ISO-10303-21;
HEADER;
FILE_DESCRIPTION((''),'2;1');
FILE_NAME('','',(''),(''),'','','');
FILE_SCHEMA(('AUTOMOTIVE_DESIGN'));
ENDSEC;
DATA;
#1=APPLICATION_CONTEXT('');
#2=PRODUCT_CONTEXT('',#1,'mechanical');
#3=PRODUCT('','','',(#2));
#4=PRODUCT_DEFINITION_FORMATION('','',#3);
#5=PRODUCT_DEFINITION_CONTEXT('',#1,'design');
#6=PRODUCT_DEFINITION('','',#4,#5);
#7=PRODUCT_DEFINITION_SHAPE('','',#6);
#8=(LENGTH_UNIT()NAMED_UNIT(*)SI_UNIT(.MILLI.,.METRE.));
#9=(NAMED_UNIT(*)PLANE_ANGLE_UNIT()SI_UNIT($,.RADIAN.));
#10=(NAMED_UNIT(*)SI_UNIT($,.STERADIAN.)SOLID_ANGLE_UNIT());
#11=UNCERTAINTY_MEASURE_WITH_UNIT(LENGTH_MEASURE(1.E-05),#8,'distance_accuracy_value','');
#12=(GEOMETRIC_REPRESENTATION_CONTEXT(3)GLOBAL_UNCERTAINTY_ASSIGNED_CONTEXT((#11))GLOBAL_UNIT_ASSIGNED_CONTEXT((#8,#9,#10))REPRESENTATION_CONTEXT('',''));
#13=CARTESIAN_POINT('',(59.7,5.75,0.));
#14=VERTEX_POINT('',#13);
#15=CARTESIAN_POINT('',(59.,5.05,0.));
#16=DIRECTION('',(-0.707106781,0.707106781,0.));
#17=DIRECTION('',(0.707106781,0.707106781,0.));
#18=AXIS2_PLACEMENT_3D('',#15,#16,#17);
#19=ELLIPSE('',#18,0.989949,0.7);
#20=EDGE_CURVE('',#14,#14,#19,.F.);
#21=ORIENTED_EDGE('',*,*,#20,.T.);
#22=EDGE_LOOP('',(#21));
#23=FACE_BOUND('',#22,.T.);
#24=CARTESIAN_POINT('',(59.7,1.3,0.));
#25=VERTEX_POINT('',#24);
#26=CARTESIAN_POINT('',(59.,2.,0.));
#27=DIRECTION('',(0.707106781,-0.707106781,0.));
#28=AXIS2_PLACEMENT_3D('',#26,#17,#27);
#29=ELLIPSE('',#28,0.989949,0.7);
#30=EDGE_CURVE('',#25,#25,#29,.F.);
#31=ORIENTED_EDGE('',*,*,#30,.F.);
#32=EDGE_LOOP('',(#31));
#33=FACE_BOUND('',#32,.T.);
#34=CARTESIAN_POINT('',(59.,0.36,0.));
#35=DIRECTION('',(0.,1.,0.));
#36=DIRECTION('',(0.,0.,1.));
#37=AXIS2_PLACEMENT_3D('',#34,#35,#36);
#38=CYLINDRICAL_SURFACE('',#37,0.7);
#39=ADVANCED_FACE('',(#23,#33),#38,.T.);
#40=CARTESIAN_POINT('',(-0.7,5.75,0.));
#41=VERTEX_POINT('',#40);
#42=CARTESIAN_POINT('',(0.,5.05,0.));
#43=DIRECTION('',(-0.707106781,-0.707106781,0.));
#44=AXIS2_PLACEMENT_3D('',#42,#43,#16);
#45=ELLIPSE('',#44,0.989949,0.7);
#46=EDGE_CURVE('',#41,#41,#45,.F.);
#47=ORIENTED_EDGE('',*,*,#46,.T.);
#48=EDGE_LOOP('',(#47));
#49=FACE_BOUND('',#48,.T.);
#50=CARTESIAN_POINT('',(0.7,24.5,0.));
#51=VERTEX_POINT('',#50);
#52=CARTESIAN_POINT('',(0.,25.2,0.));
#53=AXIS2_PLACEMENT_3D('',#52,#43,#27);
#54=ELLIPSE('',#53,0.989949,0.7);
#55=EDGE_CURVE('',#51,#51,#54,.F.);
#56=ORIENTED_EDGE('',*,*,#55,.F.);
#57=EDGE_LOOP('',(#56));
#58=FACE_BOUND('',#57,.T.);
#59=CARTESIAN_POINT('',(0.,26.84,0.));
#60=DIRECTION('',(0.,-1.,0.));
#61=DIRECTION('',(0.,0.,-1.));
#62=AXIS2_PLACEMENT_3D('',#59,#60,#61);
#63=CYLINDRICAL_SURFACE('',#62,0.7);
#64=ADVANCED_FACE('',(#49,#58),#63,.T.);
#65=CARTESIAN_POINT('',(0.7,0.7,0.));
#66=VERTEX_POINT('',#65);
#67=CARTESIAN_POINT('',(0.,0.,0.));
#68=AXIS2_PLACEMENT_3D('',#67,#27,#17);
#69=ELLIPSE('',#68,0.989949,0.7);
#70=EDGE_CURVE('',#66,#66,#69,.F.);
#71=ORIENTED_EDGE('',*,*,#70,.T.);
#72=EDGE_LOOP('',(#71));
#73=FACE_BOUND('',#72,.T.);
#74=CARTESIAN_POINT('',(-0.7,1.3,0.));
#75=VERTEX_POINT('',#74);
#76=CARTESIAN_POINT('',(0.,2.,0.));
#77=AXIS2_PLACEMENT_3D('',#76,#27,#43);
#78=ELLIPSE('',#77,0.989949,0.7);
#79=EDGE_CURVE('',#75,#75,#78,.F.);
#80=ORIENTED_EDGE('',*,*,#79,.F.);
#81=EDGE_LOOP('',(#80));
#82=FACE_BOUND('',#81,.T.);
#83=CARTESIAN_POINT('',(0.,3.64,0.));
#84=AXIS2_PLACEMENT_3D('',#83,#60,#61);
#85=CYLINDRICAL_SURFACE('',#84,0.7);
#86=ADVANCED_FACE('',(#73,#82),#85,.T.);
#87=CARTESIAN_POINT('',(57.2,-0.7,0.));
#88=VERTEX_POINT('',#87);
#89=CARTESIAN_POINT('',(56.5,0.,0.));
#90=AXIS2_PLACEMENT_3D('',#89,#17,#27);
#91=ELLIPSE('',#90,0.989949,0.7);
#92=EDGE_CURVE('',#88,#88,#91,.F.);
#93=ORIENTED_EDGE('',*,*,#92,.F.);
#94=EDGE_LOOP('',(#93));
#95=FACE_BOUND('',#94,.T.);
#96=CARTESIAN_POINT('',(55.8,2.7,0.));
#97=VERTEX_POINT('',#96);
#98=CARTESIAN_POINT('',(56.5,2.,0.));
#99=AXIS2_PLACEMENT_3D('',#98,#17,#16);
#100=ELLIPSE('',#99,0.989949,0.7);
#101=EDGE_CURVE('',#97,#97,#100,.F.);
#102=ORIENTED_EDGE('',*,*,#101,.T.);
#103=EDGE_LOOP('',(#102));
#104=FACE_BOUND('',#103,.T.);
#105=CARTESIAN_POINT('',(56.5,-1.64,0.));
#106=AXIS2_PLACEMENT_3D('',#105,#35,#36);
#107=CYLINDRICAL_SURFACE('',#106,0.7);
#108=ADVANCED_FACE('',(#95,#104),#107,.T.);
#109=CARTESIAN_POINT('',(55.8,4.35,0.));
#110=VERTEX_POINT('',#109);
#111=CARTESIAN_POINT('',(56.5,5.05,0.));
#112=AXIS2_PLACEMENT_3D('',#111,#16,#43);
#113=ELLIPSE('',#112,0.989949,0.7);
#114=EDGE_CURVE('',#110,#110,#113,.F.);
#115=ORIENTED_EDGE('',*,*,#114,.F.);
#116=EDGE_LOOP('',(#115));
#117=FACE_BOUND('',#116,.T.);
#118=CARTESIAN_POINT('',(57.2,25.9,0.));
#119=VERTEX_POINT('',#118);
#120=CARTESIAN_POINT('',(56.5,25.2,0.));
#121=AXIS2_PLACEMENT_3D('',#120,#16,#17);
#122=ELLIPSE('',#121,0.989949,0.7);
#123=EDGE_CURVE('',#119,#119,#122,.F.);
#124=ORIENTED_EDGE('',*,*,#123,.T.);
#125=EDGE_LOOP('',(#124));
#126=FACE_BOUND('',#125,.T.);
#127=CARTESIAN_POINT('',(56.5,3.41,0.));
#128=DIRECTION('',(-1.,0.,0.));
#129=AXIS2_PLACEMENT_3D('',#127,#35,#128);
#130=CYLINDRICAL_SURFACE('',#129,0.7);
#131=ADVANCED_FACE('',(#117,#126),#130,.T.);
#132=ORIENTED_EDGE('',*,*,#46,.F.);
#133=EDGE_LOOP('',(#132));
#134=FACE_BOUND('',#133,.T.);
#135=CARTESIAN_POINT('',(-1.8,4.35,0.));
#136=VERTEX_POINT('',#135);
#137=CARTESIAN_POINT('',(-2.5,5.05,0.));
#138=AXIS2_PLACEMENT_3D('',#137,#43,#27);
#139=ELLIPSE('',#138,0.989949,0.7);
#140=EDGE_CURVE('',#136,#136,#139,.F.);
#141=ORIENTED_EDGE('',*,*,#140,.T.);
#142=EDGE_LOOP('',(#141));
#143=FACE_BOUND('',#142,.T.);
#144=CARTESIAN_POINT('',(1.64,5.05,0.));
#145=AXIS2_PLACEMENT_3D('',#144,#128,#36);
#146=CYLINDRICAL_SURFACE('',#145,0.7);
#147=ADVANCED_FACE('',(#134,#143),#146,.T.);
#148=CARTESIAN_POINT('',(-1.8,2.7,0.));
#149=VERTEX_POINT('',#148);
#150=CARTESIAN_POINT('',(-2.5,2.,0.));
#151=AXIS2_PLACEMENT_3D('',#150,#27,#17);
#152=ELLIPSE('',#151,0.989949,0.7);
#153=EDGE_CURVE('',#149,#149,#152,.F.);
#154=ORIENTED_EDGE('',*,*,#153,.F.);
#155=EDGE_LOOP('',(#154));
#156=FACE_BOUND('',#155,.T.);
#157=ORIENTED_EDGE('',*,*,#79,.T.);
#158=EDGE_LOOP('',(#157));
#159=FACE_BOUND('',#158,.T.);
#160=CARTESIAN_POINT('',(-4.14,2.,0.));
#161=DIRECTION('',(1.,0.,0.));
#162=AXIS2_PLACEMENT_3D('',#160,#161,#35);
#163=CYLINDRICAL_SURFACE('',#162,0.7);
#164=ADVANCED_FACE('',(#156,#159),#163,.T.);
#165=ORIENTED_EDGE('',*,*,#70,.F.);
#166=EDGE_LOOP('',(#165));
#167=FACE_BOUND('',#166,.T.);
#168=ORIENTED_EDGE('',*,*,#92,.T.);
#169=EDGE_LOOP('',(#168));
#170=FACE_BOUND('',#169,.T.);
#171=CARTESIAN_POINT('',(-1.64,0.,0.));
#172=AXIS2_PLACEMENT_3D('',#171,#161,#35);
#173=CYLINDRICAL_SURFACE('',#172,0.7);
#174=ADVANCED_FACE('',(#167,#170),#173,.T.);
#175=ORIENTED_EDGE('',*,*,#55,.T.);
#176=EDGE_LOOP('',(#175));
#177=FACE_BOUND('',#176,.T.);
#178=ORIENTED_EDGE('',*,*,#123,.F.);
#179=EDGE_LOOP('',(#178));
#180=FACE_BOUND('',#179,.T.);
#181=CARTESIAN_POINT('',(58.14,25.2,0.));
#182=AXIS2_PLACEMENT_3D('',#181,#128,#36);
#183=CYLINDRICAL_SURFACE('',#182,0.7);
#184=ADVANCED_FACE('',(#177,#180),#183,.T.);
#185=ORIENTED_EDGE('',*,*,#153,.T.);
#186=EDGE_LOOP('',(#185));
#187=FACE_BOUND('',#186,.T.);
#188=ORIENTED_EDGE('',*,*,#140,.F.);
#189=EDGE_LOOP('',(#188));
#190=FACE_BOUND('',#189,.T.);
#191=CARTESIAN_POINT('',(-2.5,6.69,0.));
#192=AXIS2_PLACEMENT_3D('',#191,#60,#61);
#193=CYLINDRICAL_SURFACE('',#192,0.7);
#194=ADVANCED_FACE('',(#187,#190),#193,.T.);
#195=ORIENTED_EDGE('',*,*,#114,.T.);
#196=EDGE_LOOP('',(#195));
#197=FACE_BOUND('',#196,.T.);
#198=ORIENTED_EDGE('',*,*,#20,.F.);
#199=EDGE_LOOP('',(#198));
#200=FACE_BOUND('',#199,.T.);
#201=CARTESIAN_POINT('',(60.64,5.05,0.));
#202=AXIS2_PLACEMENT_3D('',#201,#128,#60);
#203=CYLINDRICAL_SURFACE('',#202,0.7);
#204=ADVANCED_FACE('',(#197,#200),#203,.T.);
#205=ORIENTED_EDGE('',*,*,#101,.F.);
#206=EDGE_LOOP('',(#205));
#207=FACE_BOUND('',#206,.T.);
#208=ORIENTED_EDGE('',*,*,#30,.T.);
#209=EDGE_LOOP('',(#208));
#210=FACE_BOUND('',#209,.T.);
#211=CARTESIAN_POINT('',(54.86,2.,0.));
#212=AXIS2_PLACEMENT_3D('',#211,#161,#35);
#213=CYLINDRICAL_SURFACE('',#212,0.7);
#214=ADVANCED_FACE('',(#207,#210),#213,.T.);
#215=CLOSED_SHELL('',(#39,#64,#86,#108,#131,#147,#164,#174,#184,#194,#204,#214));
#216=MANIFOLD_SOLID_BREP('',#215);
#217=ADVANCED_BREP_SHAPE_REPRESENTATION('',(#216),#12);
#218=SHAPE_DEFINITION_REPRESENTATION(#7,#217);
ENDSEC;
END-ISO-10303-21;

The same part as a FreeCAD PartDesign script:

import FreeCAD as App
import Part
import Sketcher

doc = App.newDocument("Part")
params = doc.addObject("Spreadsheet::Sheet", "Params")
for row, (alias, value) in enumerate([
    ("sketch1_diameter", "1.4 mm"),
    ("sketch2_height", "2 mm"),
    ("sketch2_width", "56.5 mm"),
    ("sketch2_width2", "2.5 mm"),
    ("sketch2_height2", "20.15 mm"),
    ("sketch2_height3", "3.05 mm"),
], start=1):
    params.set(f"A{row}", alias)
    params.set(f"B{row}", "=" + value)
    params.setAlias(f"B{row}", alias)

body = doc.addObject("PartDesign::Body", "Body")

# Sketch on YZ plane
sketch1 = doc.addObject("Sketcher::SketchObject", "Sketch")
body.addObject(sketch1)
sketch1.AttachmentSupport = (doc.YZ_Plane, [""])
sketch1.MapMode = "FlatFace"
sketch1.addGeometry(Part.Circle(App.Vector(0, 0, 0), App.Vector(0, 0, 1), 0.7), False)
sketch1.addConstraint([
    Sketcher.Constraint("Coincident", 0, 3, -1, 1),
    Sketcher.Constraint("Diameter", 0, 1.4),
])
sketch1.setExpression("Constraints[1]", "Params.sketch1_diameter")

# Sketch on XY plane
sketch2 = doc.addObject("Sketcher::SketchObject", "Sketch001")
body.addObject(sketch2)
sketch2.AttachmentSupport = (doc.XY_Plane, [""])
sketch2.MapMode = "FlatFace"
sketch2.addGeometry([
    Part.LineSegment(App.Vector(0, 25.2, 0), App.Vector(56.5, 25.2, 0)),  # 0
    Part.LineSegment(App.Vector(56.5, 25.2, 0), App.Vector(56.5, 5, 0)),  # 1
    Part.LineSegment(App.Vector(56.5, 5, 0), App.Vector(59, 5, 0)),  # 2
    Part.LineSegment(App.Vector(59, 5, 0), App.Vector(59, 2, 0)),  # 3
    Part.LineSegment(App.Vector(59, 2, 0), App.Vector(56.5, 2, 0)),  # 4
    Part.LineSegment(App.Vector(56.5, 2, 0), App.Vector(56.5, 0, 0)),  # 5
    Part.LineSegment(App.Vector(56.5, 0, 0), App.Vector(0, 0, 0)),  # 6
    Part.LineSegment(App.Vector(0, 0, 0), App.Vector(0, 2, 0)),  # 7
    Part.LineSegment(App.Vector(0, 2, 0), App.Vector(-2.5, 2, 0)),  # 8
    Part.LineSegment(App.Vector(-2.5, 2, 0), App.Vector(-2.5, 5, 0)),  # 9
    Part.LineSegment(App.Vector(-2.5, 5, 0), App.Vector(0, 5, 0)),  # 10
    Part.LineSegment(App.Vector(0, 5, 0), App.Vector(0, 25.2, 0)),  # 11
], False)
sketch2.addConstraint([
    Sketcher.Constraint("Coincident", 0, 2, 1, 1),
    Sketcher.Constraint("Coincident", 1, 2, 2, 1),
    Sketcher.Constraint("Coincident", 2, 2, 3, 1),
    Sketcher.Constraint("Coincident", 3, 2, 4, 1),
    Sketcher.Constraint("Coincident", 4, 2, 5, 1),
    Sketcher.Constraint("Coincident", 5, 2, 6, 1),
    Sketcher.Constraint("Coincident", 6, 2, 7, 1),
    Sketcher.Constraint("Coincident", 7, 2, 8, 1),
    Sketcher.Constraint("Coincident", 8, 2, 9, 1),
    Sketcher.Constraint("Coincident", 9, 2, 10, 1),
    Sketcher.Constraint("Coincident", 10, 2, 11, 1),
    Sketcher.Constraint("Coincident", 11, 2, 0, 1),
    Sketcher.Constraint("Horizontal", 0),
    Sketcher.Constraint("Vertical", 1),
    Sketcher.Constraint("Horizontal", 2),
    Sketcher.Constraint("Vertical", 3),
    Sketcher.Constraint("Horizontal", 4),
    Sketcher.Constraint("Vertical", 5),
    Sketcher.Constraint("Horizontal", 6),
    Sketcher.Constraint("Vertical", 7),
    Sketcher.Constraint("Horizontal", 8),
    Sketcher.Constraint("Vertical", 9),
    Sketcher.Constraint("Horizontal", 10),
    Sketcher.Constraint("Vertical", 11),
    Sketcher.Constraint("Coincident", 6, 2, -1, 1),
    Sketcher.Constraint("PointOnObject", 10, 2, -2),
    Sketcher.Constraint("Horizontal", 4, 2, 7, 2),
    Sketcher.Constraint("Horizontal", 2, 2, 9, 2),
    Sketcher.Constraint("Vertical", 1, 2, 4, 2),
    Sketcher.Constraint("Equal", 4, 8),
    Sketcher.Constraint("DistanceY", 5, 2, 5, 1, 2.0),
    Sketcher.Constraint("DistanceX", 0, 1, 0, 2, 56.5),
    Sketcher.Constraint("DistanceX", 2, 1, 2, 2, 2.5),
    Sketcher.Constraint("DistanceY", 1, 2, 1, 1, 20.15),
    Sketcher.Constraint("DistanceY", 3, 2, 3, 1, 3.05),
])
sketch2.setExpression("Constraints[30]", "Params.sketch2_height")
sketch2.setExpression("Constraints[31]", "Params.sketch2_width")
sketch2.setExpression("Constraints[32]", "Params.sketch2_width2")
sketch2.setExpression("Constraints[33]", "Params.sketch2_height2")
sketch2.setExpression("Constraints[34]", "Params.sketch2_height3")
doc.recompute()

additivepipe = doc.addObject("PartDesign::AdditivePipe", "AdditivePipe")
body.addObject(additivepipe)
additivepipe.Profile = sketch1
additivepipe.Spine = (sketch2, ["Edge1", "Edge2", "Edge3", "Edge4", "Edge5", "Edge6", "Edge7", "Edge8", "Edge9", "Edge10", "Edge11", "Edge12"])
additivepipe.Transition = "Right corner"

doc.recompute()
